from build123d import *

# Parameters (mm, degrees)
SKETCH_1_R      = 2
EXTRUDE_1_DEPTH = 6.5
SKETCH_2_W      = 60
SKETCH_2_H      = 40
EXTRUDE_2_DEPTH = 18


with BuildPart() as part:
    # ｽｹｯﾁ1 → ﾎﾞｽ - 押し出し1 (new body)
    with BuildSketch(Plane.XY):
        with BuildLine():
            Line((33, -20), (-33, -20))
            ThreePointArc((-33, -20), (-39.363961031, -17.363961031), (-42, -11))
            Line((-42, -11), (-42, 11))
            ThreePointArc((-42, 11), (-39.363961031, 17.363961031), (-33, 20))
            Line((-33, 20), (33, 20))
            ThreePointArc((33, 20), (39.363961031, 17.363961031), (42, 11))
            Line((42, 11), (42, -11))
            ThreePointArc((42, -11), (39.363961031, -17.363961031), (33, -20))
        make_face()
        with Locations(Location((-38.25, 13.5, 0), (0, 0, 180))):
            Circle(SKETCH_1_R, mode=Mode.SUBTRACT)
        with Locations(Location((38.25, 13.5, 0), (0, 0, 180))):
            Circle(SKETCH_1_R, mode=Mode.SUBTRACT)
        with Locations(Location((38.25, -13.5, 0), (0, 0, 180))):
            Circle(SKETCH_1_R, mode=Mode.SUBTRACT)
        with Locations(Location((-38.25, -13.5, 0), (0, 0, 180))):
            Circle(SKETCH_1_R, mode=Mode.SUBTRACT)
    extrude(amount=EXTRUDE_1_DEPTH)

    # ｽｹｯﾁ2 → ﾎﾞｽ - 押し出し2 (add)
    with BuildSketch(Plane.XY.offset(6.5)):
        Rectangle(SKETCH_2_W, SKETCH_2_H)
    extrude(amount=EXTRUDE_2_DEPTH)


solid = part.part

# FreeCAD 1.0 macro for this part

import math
import FreeCAD as App
import Part
import Sketcher

doc = App.newDocument("Part")
params = doc.addObject("Spreadsheet::Sheet", "Params")
for row, (alias, value) in enumerate([
    ("sketch1_diameter", "4 mm"),
    ("sketch1_radius", "9 mm"),
    ("sketch1_width", "66 mm"),
    ("sketch1_height", "22 mm"),
    ("pad1_length", "6.5 mm"),
    ("sketch2_width", "60 mm"),
    ("sketch2_height", "40 mm"),
    ("pad2_length", "18 mm"),
], start=1):
    params.set(f"A{row}", alias)
    params.set(f"B{row}", "=" + value)
    params.setAlias(f"B{row}", alias)

body = doc.addObject("PartDesign::Body", "Body")

# Sketch on XY plane
sketch1 = body.newObject("Sketcher::SketchObject", "Sketch")
sketch1.AttachmentSupport = (doc.getObject("XY_Plane"), [""])
sketch1.MapMode = "FlatFace"
sketch1.addGeometry(Part.LineSegment(App.Vector(-33, -20, 0), App.Vector(33, -20, 0)), False)
sketch1.addGeometry(Part.ArcOfCircle(Part.Circle(App.Vector(33, -11, 0), App.Vector(0, 0, 1), 9), math.radians(-90), math.radians(0)), False)
sketch1.addGeometry(Part.LineSegment(App.Vector(42, -11, 0), App.Vector(42, 11, 0)), False)
sketch1.addGeometry(Part.ArcOfCircle(Part.Circle(App.Vector(33, 11, 0), App.Vector(0, 0, 1), 9), math.radians(0), math.radians(90)), False)
sketch1.addGeometry(Part.LineSegment(App.Vector(33, 20, 0), App.Vector(-33, 20, 0)), False)
sketch1.addGeometry(Part.ArcOfCircle(Part.Circle(App.Vector(-33, 11, 0), App.Vector(0, 0, 1), 9), math.radians(90), math.radians(180)), False)
sketch1.addGeometry(Part.LineSegment(App.Vector(-42, 11, 0), App.Vector(-42, -11, 0)), False)
sketch1.addGeometry(Part.ArcOfCircle(Part.Circle(App.Vector(-33, -11, 0), App.Vector(0, 0, 1), 9), math.radians(180), math.radians(270)), False)
sketch1.addGeometry(Part.Circle(App.Vector(38.25, -13.5, 0), App.Vector(0, 0, 1), 2), False)
sketch1.addGeometry(Part.Circle(App.Vector(-38.25, -13.5, 0), App.Vector(0, 0, 1), 2), False)
sketch1.addGeometry(Part.Circle(App.Vector(38.25, 13.5, 0), App.Vector(0, 0, 1), 2), False)
sketch1.addGeometry(Part.Circle(App.Vector(-38.25, 13.5, 0), App.Vector(0, 0, 1), 2), False)
sketch1.addConstraint(Sketcher.Constraint("Tangent", 0, 2, 1, 1))
sketch1.addConstraint(Sketcher.Constraint("Tangent", 1, 2, 2, 1))
sketch1.addConstraint(Sketcher.Constraint("Tangent", 2, 2, 3, 1))
sketch1.addConstraint(Sketcher.Constraint("Tangent", 3, 2, 4, 1))
sketch1.addConstraint(Sketcher.Constraint("Tangent", 4, 2, 5, 1))
sketch1.addConstraint(Sketcher.Constraint("Tangent", 5, 2, 6, 1))
sketch1.addConstraint(Sketcher.Constraint("Tangent", 6, 2, 7, 1))
sketch1.addConstraint(Sketcher.Constraint("Tangent", 7, 2, 0, 1))
sketch1.addConstraint(Sketcher.Constraint("Horizontal", 0))
sketch1.addConstraint(Sketcher.Constraint("Vertical", 2))
sketch1.addConstraint(Sketcher.Constraint("Horizontal", 4))
sketch1.addConstraint(Sketcher.Constraint("Vertical", 6))
sketch1.addConstraint(Sketcher.Constraint("Equal", 1, 3))
sketch1.addConstraint(Sketcher.Constraint("Equal", 3, 5))
sketch1.addConstraint(Sketcher.Constraint("Equal", 5, 7))
sketch1.addConstraint(Sketcher.Constraint("Equal", 8, 9))
sketch1.addConstraint(Sketcher.Constraint("Equal", 9, 10))
sketch1.addConstraint(Sketcher.Constraint("Equal", 10, 11))
sketch1.addConstraint(Sketcher.Constraint("Symmetric", 1, 3, 5, 3, -1, 1))
sketch1.addConstraint(Sketcher.Constraint("Symmetric", 9, 3, 10, 3, -1, 1))
sketch1.addConstraint(Sketcher.Constraint("Symmetric", 8, 3, 11, 3, -1, 1))
sketch1.addConstraint(Sketcher.Constraint("Symmetric", 8, 3, 9, 3, -2))
sketch1.addConstraint(Sketcher.Constraint("Diameter", 8, 4.0))
sketch1.addConstraint(Sketcher.Constraint("Radius", 1, 9.0))
sketch1.addConstraint(Sketcher.Constraint("DistanceX", 0, 1, 0, 2, 66.0))
sketch1.addConstraint(Sketcher.Constraint("DistanceY", 2, 1, 2, 2, 22.0))
sketch1.addConstraint(Sketcher.Constraint("DistanceY", 8, 3, 10, 3, 27.0))
sketch1.addConstraint(Sketcher.Constraint("DistanceX", 9, 3, 8, 3, 76.5))
sketch1.setExpression("Constraints[22]", "Params.sketch1_diameter")
sketch1.setExpression("Constraints[23]", "Params.sketch1_radius")
sketch1.setExpression("Constraints[24]", "Params.sketch1_width")
sketch1.setExpression("Constraints[25]", "Params.sketch1_height")
pad1 = body.newObject("PartDesign::Pad", "Pad")
pad1.Profile = sketch1
pad1.setExpression("Length", "Params.pad1_length")

# Sketch on XY plane
sketch2 = body.newObject("Sketcher::SketchObject", "Sketch001")
sketch2.AttachmentSupport = (doc.getObject("XY_Plane"), [""])
sketch2.MapMode = "FlatFace"
sketch2.AttachmentOffset = App.Placement(App.Vector(0, 0, 6.5), App.Rotation())
sketch2.addGeometry(Part.LineSegment(App.Vector(-30, 20, 0), App.Vector(-30, -20, 0)), False)
sketch2.addGeometry(Part.LineSegment(App.Vector(-30, -20, 0), App.Vector(30, -20, 0)), False)
sketch2.addGeometry(Part.LineSegment(App.Vector(30, -20, 0), App.Vector(30, 20, 0)), False)
sketch2.addGeometry(Part.LineSegment(App.Vector(30, 20, 0), App.Vector(-30, 20, 0)), False)
sketch2.addConstraint(Sketcher.Constraint("Coincident", 0, 2, 1, 1))
sketch2.addConstraint(Sketcher.Constraint("Coincident", 1, 2, 2, 1))
sketch2.addConstraint(Sketcher.Constraint("Coincident", 2, 2, 3, 1))
sketch2.addConstraint(Sketcher.Constraint("Coincident", 3, 2, 0, 1))
sketch2.addConstraint(Sketcher.Constraint("Vertical", 0))
sketch2.addConstraint(Sketcher.Constraint("Horizontal", 1))
sketch2.addConstraint(Sketcher.Constraint("Vertical", 2))
sketch2.addConstraint(Sketcher.Constraint("Horizontal", 3))
sketch2.addConstraint(Sketcher.Constraint("Symmetric", 0, 2, 2, 2, -1, 1))
sketch2.addConstraint(Sketcher.Constraint("DistanceX", 1, 1, 1, 2, 60.0))
sketch2.addConstraint(Sketcher.Constraint("DistanceY", 0, 2, 0, 1, 40.0))
sketch2.setExpression("Constraints[9]", "Params.sketch2_width")
sketch2.setExpression("Constraints[10]", "Params.sketch2_height")
pad2 = body.newObject("PartDesign::Pad", "Pad001")
pad2.Profile = sketch2
pad2.setExpression("Length", "Params.pad2_length")

doc.recompute()
